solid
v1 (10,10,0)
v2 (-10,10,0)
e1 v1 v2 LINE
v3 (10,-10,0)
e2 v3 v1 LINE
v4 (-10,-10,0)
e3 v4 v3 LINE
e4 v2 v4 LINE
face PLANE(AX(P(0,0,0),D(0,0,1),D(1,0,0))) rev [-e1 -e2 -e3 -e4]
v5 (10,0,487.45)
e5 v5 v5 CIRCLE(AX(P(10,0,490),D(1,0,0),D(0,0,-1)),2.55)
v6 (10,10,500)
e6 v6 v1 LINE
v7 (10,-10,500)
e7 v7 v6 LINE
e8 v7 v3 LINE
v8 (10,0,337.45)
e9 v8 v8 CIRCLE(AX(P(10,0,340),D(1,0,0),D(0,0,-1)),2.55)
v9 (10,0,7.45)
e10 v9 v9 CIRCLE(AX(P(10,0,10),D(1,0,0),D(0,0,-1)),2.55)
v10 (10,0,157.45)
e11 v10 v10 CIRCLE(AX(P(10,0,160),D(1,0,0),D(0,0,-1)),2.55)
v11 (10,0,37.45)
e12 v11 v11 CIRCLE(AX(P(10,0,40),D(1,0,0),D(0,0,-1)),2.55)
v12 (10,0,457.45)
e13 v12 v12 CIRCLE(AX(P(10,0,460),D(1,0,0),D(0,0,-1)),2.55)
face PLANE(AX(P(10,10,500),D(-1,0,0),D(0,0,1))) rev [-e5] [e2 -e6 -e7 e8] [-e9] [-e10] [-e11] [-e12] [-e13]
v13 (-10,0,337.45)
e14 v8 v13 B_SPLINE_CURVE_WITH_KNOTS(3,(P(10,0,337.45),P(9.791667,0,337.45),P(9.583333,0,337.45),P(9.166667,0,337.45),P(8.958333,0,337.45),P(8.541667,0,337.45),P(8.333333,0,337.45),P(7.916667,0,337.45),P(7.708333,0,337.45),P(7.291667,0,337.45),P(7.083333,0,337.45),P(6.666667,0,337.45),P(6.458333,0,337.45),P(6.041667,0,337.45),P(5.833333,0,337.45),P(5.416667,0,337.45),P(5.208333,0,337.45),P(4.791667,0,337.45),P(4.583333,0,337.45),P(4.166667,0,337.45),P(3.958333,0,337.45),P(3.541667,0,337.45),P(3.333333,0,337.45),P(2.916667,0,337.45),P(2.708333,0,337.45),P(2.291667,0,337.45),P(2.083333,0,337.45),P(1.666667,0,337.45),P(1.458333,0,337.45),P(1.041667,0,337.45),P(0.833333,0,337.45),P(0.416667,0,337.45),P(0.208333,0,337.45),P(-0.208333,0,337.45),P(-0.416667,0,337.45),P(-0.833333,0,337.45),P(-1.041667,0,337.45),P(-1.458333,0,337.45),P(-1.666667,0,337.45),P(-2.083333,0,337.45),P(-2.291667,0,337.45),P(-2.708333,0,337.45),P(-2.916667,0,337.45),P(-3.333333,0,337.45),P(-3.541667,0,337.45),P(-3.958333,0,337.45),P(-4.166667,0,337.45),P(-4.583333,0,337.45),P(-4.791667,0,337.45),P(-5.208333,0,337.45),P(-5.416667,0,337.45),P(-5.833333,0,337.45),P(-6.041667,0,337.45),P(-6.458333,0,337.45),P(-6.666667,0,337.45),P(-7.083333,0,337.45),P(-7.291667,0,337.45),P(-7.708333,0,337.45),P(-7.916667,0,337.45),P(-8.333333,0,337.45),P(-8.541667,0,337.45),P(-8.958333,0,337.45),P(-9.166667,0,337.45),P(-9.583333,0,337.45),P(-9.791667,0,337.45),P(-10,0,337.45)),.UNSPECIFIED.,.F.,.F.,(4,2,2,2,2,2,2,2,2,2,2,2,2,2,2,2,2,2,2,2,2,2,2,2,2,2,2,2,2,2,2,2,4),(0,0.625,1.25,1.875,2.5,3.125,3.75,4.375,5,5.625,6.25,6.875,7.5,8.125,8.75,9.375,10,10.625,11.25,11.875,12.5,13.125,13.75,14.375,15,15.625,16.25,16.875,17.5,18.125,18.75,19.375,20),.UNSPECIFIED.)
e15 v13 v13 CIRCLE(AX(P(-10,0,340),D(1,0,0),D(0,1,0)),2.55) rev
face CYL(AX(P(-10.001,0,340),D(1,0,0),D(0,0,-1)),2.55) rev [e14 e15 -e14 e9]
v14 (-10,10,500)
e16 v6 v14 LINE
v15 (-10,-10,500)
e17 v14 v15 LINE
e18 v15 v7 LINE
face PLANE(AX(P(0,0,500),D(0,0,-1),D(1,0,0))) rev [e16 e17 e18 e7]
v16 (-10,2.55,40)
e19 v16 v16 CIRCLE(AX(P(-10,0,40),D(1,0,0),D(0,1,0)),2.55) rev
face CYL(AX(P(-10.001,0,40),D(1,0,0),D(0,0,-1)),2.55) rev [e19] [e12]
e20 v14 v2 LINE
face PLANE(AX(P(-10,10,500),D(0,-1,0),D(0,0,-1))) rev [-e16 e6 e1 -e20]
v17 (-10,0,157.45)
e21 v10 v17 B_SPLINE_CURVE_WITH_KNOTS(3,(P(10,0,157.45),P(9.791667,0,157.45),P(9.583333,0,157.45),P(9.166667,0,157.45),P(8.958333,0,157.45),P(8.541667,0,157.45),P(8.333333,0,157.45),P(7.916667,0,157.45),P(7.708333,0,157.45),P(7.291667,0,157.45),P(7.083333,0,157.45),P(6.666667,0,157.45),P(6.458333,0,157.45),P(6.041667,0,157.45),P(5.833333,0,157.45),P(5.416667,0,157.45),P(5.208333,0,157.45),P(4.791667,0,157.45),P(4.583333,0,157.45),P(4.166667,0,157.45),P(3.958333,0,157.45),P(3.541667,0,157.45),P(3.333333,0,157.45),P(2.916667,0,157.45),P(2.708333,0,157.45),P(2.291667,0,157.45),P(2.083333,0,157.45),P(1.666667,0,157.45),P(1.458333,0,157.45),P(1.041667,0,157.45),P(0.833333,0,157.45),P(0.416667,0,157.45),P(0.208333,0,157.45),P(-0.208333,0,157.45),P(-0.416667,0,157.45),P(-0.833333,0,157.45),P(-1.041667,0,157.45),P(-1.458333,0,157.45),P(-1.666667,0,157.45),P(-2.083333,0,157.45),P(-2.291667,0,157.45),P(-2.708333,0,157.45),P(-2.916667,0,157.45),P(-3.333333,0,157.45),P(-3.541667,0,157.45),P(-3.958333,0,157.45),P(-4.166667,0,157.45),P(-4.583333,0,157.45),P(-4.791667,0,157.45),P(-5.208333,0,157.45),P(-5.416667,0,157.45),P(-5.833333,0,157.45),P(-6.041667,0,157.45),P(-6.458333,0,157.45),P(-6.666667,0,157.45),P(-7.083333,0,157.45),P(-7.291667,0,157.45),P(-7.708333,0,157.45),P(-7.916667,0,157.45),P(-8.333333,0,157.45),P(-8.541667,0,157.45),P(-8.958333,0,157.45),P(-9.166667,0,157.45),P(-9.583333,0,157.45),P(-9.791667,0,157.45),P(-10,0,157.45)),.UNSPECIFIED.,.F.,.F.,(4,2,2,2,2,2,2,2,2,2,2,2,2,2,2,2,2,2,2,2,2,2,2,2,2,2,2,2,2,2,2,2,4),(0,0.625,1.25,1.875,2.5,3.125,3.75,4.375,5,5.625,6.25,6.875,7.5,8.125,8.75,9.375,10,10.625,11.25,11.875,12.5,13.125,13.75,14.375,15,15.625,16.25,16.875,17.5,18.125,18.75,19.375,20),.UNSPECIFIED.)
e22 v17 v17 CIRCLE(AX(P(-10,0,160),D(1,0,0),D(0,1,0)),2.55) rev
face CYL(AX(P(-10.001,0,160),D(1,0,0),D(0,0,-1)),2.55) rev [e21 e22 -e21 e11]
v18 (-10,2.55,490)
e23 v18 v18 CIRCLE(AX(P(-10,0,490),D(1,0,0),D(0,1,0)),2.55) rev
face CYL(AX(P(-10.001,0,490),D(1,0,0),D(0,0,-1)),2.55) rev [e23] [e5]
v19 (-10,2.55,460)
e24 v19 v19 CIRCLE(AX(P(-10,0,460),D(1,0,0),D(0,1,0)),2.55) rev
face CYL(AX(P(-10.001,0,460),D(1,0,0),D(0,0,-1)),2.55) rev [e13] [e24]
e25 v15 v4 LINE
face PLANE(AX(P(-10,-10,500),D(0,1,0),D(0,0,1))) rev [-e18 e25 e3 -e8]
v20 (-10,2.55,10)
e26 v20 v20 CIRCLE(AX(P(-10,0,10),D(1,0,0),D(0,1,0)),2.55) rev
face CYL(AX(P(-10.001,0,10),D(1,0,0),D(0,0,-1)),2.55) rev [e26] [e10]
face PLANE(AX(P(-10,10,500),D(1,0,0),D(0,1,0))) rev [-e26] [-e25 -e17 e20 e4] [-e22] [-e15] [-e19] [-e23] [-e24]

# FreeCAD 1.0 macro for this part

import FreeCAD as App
import Part
import Sketcher
from FreeCAD import Vector
Q = App.Units.Quantity

doc = App.newDocument("Part")
body = doc.addObject("PartDesign::Body", "Body")

sketch1 = body.newObject("Sketcher::SketchObject", "Sketch")
sketch1.AttachmentSupport = (doc.getObject("XY_Plane"), [""])
sketch1.MapMode = "FlatFace"
sketch1.addGeometry(Part.LineSegment(Vector(-10, 10, 0), Vector(-10, -10, 0)), False)
sketch1.addGeometry(Part.LineSegment(Vector(-10, -10, 0), Vector(10, -10, 0)), False)
sketch1.addGeometry(Part.LineSegment(Vector(10, -10, 0), Vector(10, 10, 0)), False)
sketch1.addGeometry(Part.LineSegment(Vector(10, 10, 0), Vector(-10, 10, 0)), False)
sketch1.addConstraint(Sketcher.Constraint("Coincident", 0, 2, 1, 1))
sketch1.addConstraint(Sketcher.Constraint("Coincident", 1, 2, 2, 1))
sketch1.addConstraint(Sketcher.Constraint("Coincident", 2, 2, 3, 1))
sketch1.addConstraint(Sketcher.Constraint("Coincident", 3, 2, 0, 1))
sketch1.addConstraint(Sketcher.Constraint("Vertical", 0))
sketch1.addConstraint(Sketcher.Constraint("Horizontal", 1))
sketch1.addConstraint(Sketcher.Constraint("Vertical", 2))
sketch1.addConstraint(Sketcher.Constraint("Horizontal", 3))
sketch1.addConstraint(Sketcher.Constraint("Symmetric", 0, 2, 2, 2, -1, 1))
sketch1.addConstraint(Sketcher.Constraint("Equal", 3, 0))
sketch1.addConstraint(Sketcher.Constraint("DistanceX", 1, 1, 1, 2, Q("20 mm")))
pad1 = body.newObject("PartDesign::Pad", "Pad")
pad1.Profile = sketch1
pad1.Length = 500

sketch2 = body.newObject("Sketcher::SketchObject", "Sketch001")
sketch2.AttachmentSupport = (doc.getObject("YZ_Plane"), [""])
sketch2.MapMode = "FlatFace"
sketch2.AttachmentOffset = App.Placement(Vector(0, 0, 10), App.Rotation())
sketch2.addGeometry(Part.Circle(Vector(0, 10, 0), Vector(0, 0, 1), 2.55), False)
sketch2.addConstraint(Sketcher.Constraint("PointOnObject", 0, 3, -2))
sketch2.addConstraint(Sketcher.Constraint("Diameter", 0, Q("5.1 mm")))
sketch2.addConstraint(Sketcher.Constraint("DistanceY", -1, 1, 0, 3, Q("10 mm")))
pocket1 = body.newObject("PartDesign::Pocket", "Pocket")
pocket1.Profile = sketch2
pocket1.Type = "UpToFirst"

sketch3 = body.newObject("Sketcher::SketchObject", "Sketch002")
sketch3.AttachmentSupport = (doc.getObject("YZ_Plane"), [""])
sketch3.MapMode = "FlatFace"
sketch3.AttachmentOffset = App.Placement(Vector(0, 0, 10), App.Rotation())
sketch3.addGeometry(Part.Circle(Vector(0, 40, 0), Vector(0, 0, 1), 2.55), False)
sketch3.addConstraint(Sketcher.Constraint("PointOnObject", 0, 3, -2))
sketch3.addConstraint(Sketcher.Constraint("Diameter", 0, Q("5.1 mm")))
sketch3.addConstraint(Sketcher.Constraint("DistanceY", -1, 1, 0, 3, Q("40 mm")))
pocket2 = body.newObject("PartDesign::Pocket", "Pocket001")
pocket2.Profile = sketch3
pocket2.Type = "UpToFirst"

sketch4 = body.newObject("Sketcher::SketchObject", "Sketch003")
sketch4.AttachmentSupport = (doc.getObject("XZ_Plane"), [""])
sketch4.MapMode = "FlatFace"
sketch4.AttachmentOffset = App.Placement(Vector(0, 0, 10), App.Rotation())
sketch4.addGeometry(Part.LineSegment(Vector(-10, 50, 0), Vector(-10, 0, 0)), False)
sketch4.addGeometry(Part.LineSegment(Vector(-10, 0, 0), Vector(10, 0, 0)), False)
sketch4.addGeometry(Part.LineSegment(Vector(10, 0, 0), Vector(10, 50, 0)), False)
sketch4.addGeometry(Part.LineSegment(Vector(10, 50, 0), Vector(-10, 50, 0)), False)
sketch4.addConstraint(Sketcher.Constraint("Coincident", 0, 2, 1, 1))
sketch4.addConstraint(Sketcher.Constraint("Coincident", 1, 2, 2, 1))
sketch4.addConstraint(Sketcher.Constraint("Coincident", 2, 2, 3, 1))
sketch4.addConstraint(Sketcher.Constraint("Coincident", 3, 2, 0, 1))
sketch4.addConstraint(Sketcher.Constraint("Vertical", 0))
sketch4.addConstraint(Sketcher.Constraint("Horizontal", 1))
sketch4.addConstraint(Sketcher.Constraint("Vertical", 2))
sketch4.addConstraint(Sketcher.Constraint("Horizontal", 3))
sketch4.addConstraint(Sketcher.Constraint("Symmetric", 0, 2, 1, 2, -1, 1))
sketch4.addConstraint(Sketcher.Constraint("DistanceX", 1, 1, 1, 2, Q("20 mm")))
sketch4.addConstraint(Sketcher.Constraint("DistanceY", 0, 2, 0, 1, Q("50 mm")))
pad2 = body.newObject("PartDesign::Pad", "Pad001")
pad2.Profile = sketch4
pad2.Length = 20

sketch5 = body.newObject("Sketcher::SketchObject", "Sketch004")
sketch5.AttachmentSupport = (doc.getObject("YZ_Plane"), [""])
sketch5.MapMode = "FlatFace"
sketch5.AttachmentOffset = App.Placement(Vector(0, 0, 10), App.Rotation())
sketch5.addGeometry(Part.Circle(Vector(-20, 40, 0), Vector(0, 0, 1), 2.55), False)
sketch5.addGeometry(Part.Circle(Vector(-20, 10, 0), Vector(0, 0, 1), 2.55), False)
sketch5.addConstraint(Sketcher.Constraint("Equal", 0, 1))
sketch5.addConstraint(Sketcher.Constraint("Vertical", 0, 3, 1, 3))
sketch5.addConstraint(Sketcher.Constraint("Diameter", 0, Q("5.1 mm")))
sketch5.addConstraint(Sketcher.Constraint("DistanceX", 0, 3, -1, 1, Q("20 mm")))
sketch5.addConstraint(Sketcher.Constraint("DistanceY", -1, 1, 0, 3, Q("40 mm")))
sketch5.addConstraint(Sketcher.Constraint("DistanceY", -1, 1, 1, 3, Q("10 mm")))
pocket3 = body.newObject("PartDesign::Pocket", "Pocket002")
pocket3.Profile = sketch5
pocket3.Length = 20

sketch6 = body.newObject("Sketcher::SketchObject", "Sketch005")
sketch6.AttachmentSupport = (doc.getObject("XY_Plane"), [""])
sketch6.MapMode = "FlatFace"
sketch6.AttachmentOffset = App.Placement(Vector(0, 0, 500), App.Rotation())
sketch6.addGeometry(Part.LineSegment(Vector(-10, 10, 0), Vector(-10, -10, 0)), False)
sketch6.addGeometry(Part.LineSegment(Vector(-10, -10, 0), Vector(10, -10, 0)), False)
sketch6.addGeometry(Part.LineSegment(Vector(10, -10, 0), Vector(10, 10, 0)), False)
sketch6.addGeometry(Part.LineSegment(Vector(10, 10, 0), Vector(-10, 10, 0)), False)
sketch6.addConstraint(Sketcher.Constraint("Coincident", 0, 2, 1, 1))
sketch6.addConstraint(Sketcher.Constraint("Coincident", 1, 2, 2, 1))
sketch6.addConstraint(Sketcher.Constraint("Coincident", 2, 2, 3, 1))
sketch6.addConstraint(Sketcher.Constraint("Coincident", 3, 2, 0, 1))
sketch6.addConstraint(Sketcher.Constraint("Vertical", 0))
sketch6.addConstraint(Sketcher.Constraint("Horizontal", 1))
sketch6.addConstraint(Sketcher.Constraint("Vertical", 2))
sketch6.addConstraint(Sketcher.Constraint("Horizontal", 3))
sketch6.addConstraint(Sketcher.Constraint("Symmetric", 0, 2, 2, 2, -1, 1))
sketch6.addConstraint(Sketcher.Constraint("Equal", 3, 0))
sketch6.addConstraint(Sketcher.Constraint("DistanceX", 1, 1, 1, 2, Q("20 mm")))
pocket4 = body.newObject("PartDesign::Pocket", "Pocket003")
pocket4.Profile = sketch6
pocket4.Length = 250
doc.recompute()

datumplane = body.newObject("PartDesign::Plane", "DatumPlane")
datumplane.AttachmentSupport = (doc.getObject("XY_Plane"), [""])
datumplane.MapMode = "FlatFace"
datumplane.AttachmentOffset = App.Placement(Vector(0, 0, 250), App.Rotation())
mirrored = body.newObject("PartDesign::Mirrored", "Mirrored")
mirrored.Originals = [pad1, pad2]
mirrored.MirrorPlane = (datumplane, [""])
body.Tip = mirrored

sketch7 = body.newObject("Sketcher::SketchObject", "Sketch006")
sketch7.AttachmentSupport = (doc.getObject("YZ_Plane"), [""])
sketch7.MapMode = "FlatFace"
sketch7.AttachmentOffset = App.Placement(Vector(0, 0, 10), App.Rotation())
sketch7.addGeometry(Part.Circle(Vector(0, 490, 0), Vector(0, 0, 1), 2.55), False)
sketch7.addConstraint(Sketcher.Constraint("PointOnObject", 0, 3, -2))
sketch7.addConstraint(Sketcher.Constraint("Diameter", 0, Q("5.1 mm")))
sketch7.addConstraint(Sketcher.Constraint("DistanceY", -1, 1, 0, 3, Q("490 mm")))
pocket5 = body.newObject("PartDesign::Pocket", "Pocket004")
pocket5.Profile = sketch7
pocket5.Type = "UpToFirst"

sketch8 = body.newObject("Sketcher::SketchObject", "Sketch007")
sketch8.AttachmentSupport = (doc.getObject("YZ_Plane"), [""])
sketch8.MapMode = "FlatFace"
sketch8.AttachmentOffset = App.Placement(Vector(0, 0, 10), App.Rotation())
sketch8.addGeometry(Part.Circle(Vector(0, 460, 0), Vector(0, 0, 1), 2.55), False)
sketch8.addConstraint(Sketcher.Constraint("PointOnObject", 0, 3, -2))
sketch8.addConstraint(Sketcher.Constraint("Diameter", 0, Q("5.1 mm")))
sketch8.addConstraint(Sketcher.Constraint("DistanceY", -1, 1, 0, 3, Q("460 mm")))
pocket6 = body.newObject("PartDesign::Pocket", "Pocket005")
pocket6.Profile = sketch8
pocket6.Type = "UpToFirst"

sketch9 = body.newObject("Sketcher::SketchObject", "Sketch008")
sketch9.AttachmentSupport = (doc.getObject("YZ_Plane"), [""])
sketch9.MapMode = "FlatFace"
sketch9.AttachmentOffset = App.Placement(Vector(0, 0, 10), App.Rotation())
sketch9.addGeometry(Part.Circle(Vector(-20, 460, 0), Vector(0, 0, 1), 2.55), False)
sketch9.addConstraint(Sketcher.Constraint("Diameter", 0, Q("5.1 mm")))
sketch9.addConstraint(Sketcher.Constraint("DistanceX", 0, 3, -1, 1, Q("20 mm")))
sketch9.addConstraint(Sketcher.Constraint("DistanceY", -1, 1, 0, 3, Q("460 mm")))
pocket7 = body.newObject("PartDesign::Pocket", "Pocket006")
pocket7.Profile = sketch9
pocket7.Type = "UpToFirst"

sketch10 = body.newObject("Sketcher::SketchObject", "Sketch009")
sketch10.AttachmentSupport = (doc.getObject("YZ_Plane"), [""])
sketch10.MapMode = "FlatFace"
sketch10.AttachmentOffset = App.Placement(Vector(0, 0, 10), App.Rotation())
sketch10.addGeometry(Part.Circle(Vector(-20, 490, 0), Vector(0, 0, 1), 2.55), False)
sketch10.addConstraint(Sketcher.Constraint("Diameter", 0, Q("5.1 mm")))
sketch10.addConstraint(Sketcher.Constraint("DistanceX", 0, 3, -1, 1, Q("20 mm")))
sketch10.addConstraint(Sketcher.Constraint("DistanceY", -1, 1, 0, 3, Q("490 mm")))
pocket8 = body.newObject("PartDesign::Pocket", "Pocket007")
pocket8.Profile = sketch10
pocket8.Type = "UpToFirst"

sketch11 = body.newObject("Sketcher::SketchObject", "Sketch010")
sketch11.AttachmentSupport = (doc.getObject("YZ_Plane"), [""])
sketch11.MapMode = "FlatFace"
sketch11.AttachmentOffset = App.Placement(Vector(0, 0, 10), App.Rotation())
sketch11.addGeometry(Part.Circle(Vector(0, 10, 0), Vector(0, 0, 1), 2.55), False)
sketch11.addConstraint(Sketcher.Constraint("PointOnObject", 0, 3, -2))
sketch11.addConstraint(Sketcher.Constraint("Diameter", 0, Q("5.1 mm")))
sketch11.addConstraint(Sketcher.Constraint("DistanceY", -1, 1, 0, 3, Q("10 mm")))
pocket9 = body.newObject("PartDesign::Pocket", "Pocket008")
pocket9.Profile = sketch11
pocket9.Type = "UpToFirst"

sketch12 = body.newObject("Sketcher::SketchObject", "Sketch011")
sketch12.AttachmentSupport = (doc.getObject("YZ_Plane"), [""])
sketch12.MapMode = "FlatFace"
sketch12.AttachmentOffset = App.Placement(Vector(0, 0, 10), App.Rotation())
sketch12.addGeometry(Part.Circle(Vector(0, 40, 0), Vector(0, 0, 1), 2.55), False)
sketch12.addConstraint(Sketcher.Constraint("PointOnObject", 0, 3, -2))
sketch12.addConstraint(Sketcher.Constraint("Diameter", 0, Q("5.1 mm")))
sketch12.addConstraint(Sketcher.Constraint("DistanceY", -1, 1, 0, 3, Q("40 mm")))
pocket10 = body.newObject("PartDesign::Pocket", "Pocket009")
pocket10.Profile = sketch12
pocket10.Type = "UpToFirst"

sketch13 = body.newObject("Sketcher::SketchObject", "Sketch012")
sketch13.AttachmentSupport = (doc.getObject("YZ_Plane"), [""])
sketch13.MapMode = "FlatFace"
sketch13.AttachmentOffset = App.Placement(Vector(0, 0, 10), App.Rotation())
sketch13.addGeometry(Part.LineSegment(Vector(-10, 500, 0), Vector(-30, 500, 0)), False)
sketch13.addGeometry(Part.LineSegment(Vector(-30, 500, 0), Vector(-30, 450, 0)), False)
sketch13.addGeometry(Part.LineSegment(Vector(-30, 450, 0), Vector(-10, 450, 0)), False)
sketch13.addGeometry(Part.LineSegment(Vector(-10, 450, 0), Vector(-10, 500, 0)), False)
sketch13.addGeometry(Part.LineSegment(Vector(-10, 50, 0), Vector(-30, 50, 0)), False)
sketch13.addGeometry(Part.LineSegment(Vector(-30, 50, 0), Vector(-30, 0, 0)), False)
sketch13.addGeometry(Part.LineSegment(Vector(-30, 0, 0), Vector(-10, 0, 0)), False)
sketch13.addGeometry(Part.LineSegment(Vector(-10, 0, 0), Vector(-10, 50, 0)), False)
sketch13.addConstraint(Sketcher.Constraint("Coincident", 0, 2, 1, 1))
sketch13.addConstraint(Sketcher.Constraint("Coincident", 1, 2, 2, 1))
sketch13.addConstraint(Sketcher.Constraint("Coincident", 2, 2, 3, 1))
sketch13.addConstraint(Sketcher.Constraint("Coincident", 3, 2, 0, 1))
sketch13.addConstraint(Sketcher.Constraint("Coincident", 4, 2, 5, 1))
sketch13.addConstraint(Sketcher.Constraint("Coincident", 5, 2, 6, 1))
sketch13.addConstraint(Sketcher.Constraint("Coincident", 6, 2, 7, 1))
sketch13.addConstraint(Sketcher.Constraint("Coincident", 7, 2, 4, 1))
sketch13.addConstraint(Sketcher.Constraint("Horizontal", 0))
sketch13.addConstraint(Sketcher.Constraint("Vertical", 1))
sketch13.addConstraint(Sketcher.Constraint("Horizontal", 2))
sketch13.addConstraint(Sketcher.Constraint("Vertical", 3))
sketch13.addConstraint(Sketcher.Constraint("Horizontal", 4))
sketch13.addConstraint(Sketcher.Constraint("Vertical", 5))
sketch13.addConstraint(Sketcher.Constraint("Horizontal", 6))
sketch13.addConstraint(Sketcher.Constraint("Vertical", 7))
sketch13.addConstraint(Sketcher.Constraint("PointOnObject", 5, 2, -1))
sketch13.addConstraint(Sketcher.Constraint("Vertical", 1, 2, 4, 2))
sketch13.addConstraint(Sketcher.Constraint("Vertical", 3, 2, 6, 2))
sketch13.addConstraint(Sketcher.Constraint("Equal", 3, 5))
sketch13.addConstraint(Sketcher.Constraint("DistanceX", 0, 2, 0, 1, Q("20 mm")))
sketch13.addConstraint(Sketcher.Constraint("DistanceY", 1, 2, 1, 1, Q("50 mm")))
sketch13.addConstraint(Sketcher.Constraint("DistanceX", 0, 2, -1, 1, Q("30 mm")))
sketch13.addConstraint(Sketcher.Constraint("DistanceY", -1, 1, 0, 2, Q("500 mm")))
pocket11 = body.newObject("PartDesign::Pocket", "Pocket010")
pocket11.Profile = sketch13
pocket11.Length = 250

sketch14 = body.newObject("Sketcher::SketchObject", "Sketch013")
sketch14.AttachmentSupport = (doc.getObject("YZ_Plane"), [""])
sketch14.MapMode = "FlatFace"
sketch14.AttachmentOffset = App.Placement(Vector(0, 0, 10), App.Rotation())
sketch14.addGeometry(Part.Circle(Vector(0, 340, 0), Vector(0, 0, 1), 2.55), False)
sketch14.addConstraint(Sketcher.Constraint("PointOnObject", 0, 3, -2))
sketch14.addConstraint(Sketcher.Constraint("Diameter", 0, Q("5.1 mm")))
sketch14.addConstraint(Sketcher.Constraint("DistanceY", -1, 1, 0, 3, Q("340 mm")))
pocket12 = body.newObject("PartDesign::Pocket", "Pocket011")
pocket12.Profile = sketch14
pocket12.Type = "UpToFirst"

sketch15 = body.newObject("Sketcher::SketchObject", "Sketch014")
sketch15.AttachmentSupport = (doc.getObject("YZ_Plane"), [""])
sketch15.MapMode = "FlatFace"
sketch15.AttachmentOffset = App.Placement(Vector(0, 0, 10), App.Rotation())
sketch15.addGeometry(Part.Circle(Vector(0, 160, 0), Vector(0, 0, 1), 2.55), False)
sketch15.addConstraint(Sketcher.Constraint("PointOnObject", 0, 3, -2))
sketch15.addConstraint(Sketcher.Constraint("Diameter", 0, Q("5.1 mm")))
sketch15.addConstraint(Sketcher.Constraint("DistanceY", -1, 1, 0, 3, Q("160 mm")))
pocket13 = body.newObject("PartDesign::Pocket", "Pocket012")
pocket13.Profile = sketch15
pocket13.Type = "UpToFirst"

doc.recompute()
